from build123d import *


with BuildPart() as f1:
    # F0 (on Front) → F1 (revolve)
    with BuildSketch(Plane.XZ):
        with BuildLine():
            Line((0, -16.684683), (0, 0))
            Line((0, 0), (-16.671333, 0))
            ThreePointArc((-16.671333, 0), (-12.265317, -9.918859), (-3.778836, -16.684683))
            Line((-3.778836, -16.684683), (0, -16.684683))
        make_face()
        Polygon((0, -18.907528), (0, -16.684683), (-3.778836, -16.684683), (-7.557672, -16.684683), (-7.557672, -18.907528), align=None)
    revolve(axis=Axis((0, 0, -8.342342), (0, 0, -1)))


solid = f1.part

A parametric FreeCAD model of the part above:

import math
import FreeCAD as App
import Part
import Sketcher
from FreeCAD import Vector
Q = App.Units.Quantity

doc = App.newDocument("Part")
params = doc.addObject("Spreadsheet::Sheet", "Params")
for row, (alias, value) in enumerate([
    ("revolution_angle", "360 deg"),
], start=1):
    params.set(f"A{row}", alias)
    params.set(f"B{row}", "=" + value)
    params.setAlias(f"B{row}", alias)

body = doc.addObject("PartDesign::Body", "Body")

sketch1 = body.newObject("Sketcher::SketchObject", "Sketch")
sketch1.AttachmentSupport = (doc.getObject("XZ_Plane"), [""])
sketch1.MapMode = "FlatFace"
sketch1.addGeometry(Part.LineSegment(Vector(0, 0, 0), Vector(-16.671333, 0, 0)), False)
sketch1.addGeometry(Part.ArcOfCircle(Part.Circle(Vector(5.81037, 4.048487, 0), Vector(0, 0, 1), 22.843319), math.radians(-169.791631), math.radians(-114.820802)), False)
sketch1.addGeometry(Part.LineSegment(Vector(-3.778836, -16.684683, 0), Vector(-7.557672, -16.684683, 0)), False)
sketch1.addGeometry(Part.LineSegment(Vector(-7.557672, -16.684683, 0), Vector(-7.557672, -18.907528, 0)), False)
sketch1.addGeometry(Part.LineSegment(Vector(-7.557672, -18.907528, 0), Vector(0, -18.907528, 0)), False)
sketch1.addGeometry(Part.LineSegment(Vector(0, -18.907528, 0), Vector(0, 0, 0)), False)
sketch1.addConstraint(Sketcher.Constraint("Coincident", 0, 2, 1, 1))
sketch1.addConstraint(Sketcher.Constraint("Coincident", 1, 2, 2, 1))
sketch1.addConstraint(Sketcher.Constraint("Coincident", 2, 2, 3, 1))
sketch1.addConstraint(Sketcher.Constraint("Coincident", 3, 2, 4, 1))
sketch1.addConstraint(Sketcher.Constraint("Coincident", 4, 2, 5, 1))
sketch1.addConstraint(Sketcher.Constraint("Coincident", 5, 2, 0, 1))
sketch1.addConstraint(Sketcher.Constraint("Horizontal", 0))
sketch1.addConstraint(Sketcher.Constraint("Horizontal", 2))
sketch1.addConstraint(Sketcher.Constraint("Vertical", 3))
sketch1.addConstraint(Sketcher.Constraint("Horizontal", 4))
sketch1.addConstraint(Sketcher.Constraint("Vertical", 5))
sketch1.addConstraint(Sketcher.Constraint("Coincident", 5, 2, -1, 1))
sketch1.addConstraint(Sketcher.Constraint("Radius", 1, Q("22.843319 mm")))
sketch1.addConstraint(Sketcher.Constraint("DistanceX", 0, 2, 0, 1, Q("16.671333 mm")))
sketch1.addConstraint(Sketcher.Constraint("DistanceX", 2, 2, 2, 1, Q("3.778836 mm")))
sketch1.addConstraint(Sketcher.Constraint("DistanceX", 4, 1, 4, 2, Q("7.557672 mm")))
sketch1.addConstraint(Sketcher.Constraint("DistanceY", 3, 2, 3, 1, Q("2.222845 mm")))
sketch1.addConstraint(Sketcher.Constraint("DistanceY", 5, 1, 5, 2, Q("18.907528 mm")))
revolution = body.newObject("PartDesign::Revolution", "Revolution")
revolution.Profile = sketch1
revolution.ReferenceAxis = (sketch1, ["V_Axis"])
revolution.setExpression("Angle", "Params.revolution_angle")

doc.recompute()
